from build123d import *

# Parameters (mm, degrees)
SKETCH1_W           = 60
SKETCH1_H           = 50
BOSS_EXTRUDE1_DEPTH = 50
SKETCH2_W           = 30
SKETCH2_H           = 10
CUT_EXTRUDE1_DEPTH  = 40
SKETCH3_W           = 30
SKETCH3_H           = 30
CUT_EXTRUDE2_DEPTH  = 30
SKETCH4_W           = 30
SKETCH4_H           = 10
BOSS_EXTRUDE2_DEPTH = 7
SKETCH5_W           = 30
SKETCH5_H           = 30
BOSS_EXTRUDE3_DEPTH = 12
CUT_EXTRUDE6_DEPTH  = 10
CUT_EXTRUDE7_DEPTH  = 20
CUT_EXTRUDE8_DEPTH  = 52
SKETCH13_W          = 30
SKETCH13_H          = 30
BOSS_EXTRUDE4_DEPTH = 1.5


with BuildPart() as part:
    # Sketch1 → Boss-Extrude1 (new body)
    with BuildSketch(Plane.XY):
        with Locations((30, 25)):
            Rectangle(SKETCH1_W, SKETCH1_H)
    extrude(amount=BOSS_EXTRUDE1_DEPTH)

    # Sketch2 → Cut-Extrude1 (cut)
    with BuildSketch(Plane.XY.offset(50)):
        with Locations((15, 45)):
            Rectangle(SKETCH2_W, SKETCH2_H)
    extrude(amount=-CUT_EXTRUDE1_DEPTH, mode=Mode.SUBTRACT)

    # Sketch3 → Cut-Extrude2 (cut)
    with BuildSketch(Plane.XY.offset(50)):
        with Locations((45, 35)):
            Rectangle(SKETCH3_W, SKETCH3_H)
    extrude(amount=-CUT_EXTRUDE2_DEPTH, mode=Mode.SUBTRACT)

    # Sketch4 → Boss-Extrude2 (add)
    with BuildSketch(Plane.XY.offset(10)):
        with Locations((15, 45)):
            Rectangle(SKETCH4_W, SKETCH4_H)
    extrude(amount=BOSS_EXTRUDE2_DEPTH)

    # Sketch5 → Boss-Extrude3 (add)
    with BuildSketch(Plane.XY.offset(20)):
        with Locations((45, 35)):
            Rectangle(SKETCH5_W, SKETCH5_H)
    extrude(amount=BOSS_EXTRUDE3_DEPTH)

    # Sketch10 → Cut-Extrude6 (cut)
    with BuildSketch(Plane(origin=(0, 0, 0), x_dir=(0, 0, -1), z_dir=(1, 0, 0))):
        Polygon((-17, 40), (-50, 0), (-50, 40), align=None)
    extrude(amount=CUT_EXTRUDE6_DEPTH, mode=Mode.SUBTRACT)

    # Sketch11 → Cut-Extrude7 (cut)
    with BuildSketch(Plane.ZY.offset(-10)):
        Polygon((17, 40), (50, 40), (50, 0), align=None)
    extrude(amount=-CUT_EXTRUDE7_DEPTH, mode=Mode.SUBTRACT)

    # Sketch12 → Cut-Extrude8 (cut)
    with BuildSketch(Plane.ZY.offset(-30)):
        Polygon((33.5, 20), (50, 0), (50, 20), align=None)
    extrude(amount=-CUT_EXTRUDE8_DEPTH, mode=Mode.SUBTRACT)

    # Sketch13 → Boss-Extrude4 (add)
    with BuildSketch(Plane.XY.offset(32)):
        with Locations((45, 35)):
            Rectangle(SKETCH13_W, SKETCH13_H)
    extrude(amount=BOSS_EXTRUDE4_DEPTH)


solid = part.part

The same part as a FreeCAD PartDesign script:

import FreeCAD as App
import Part
import Sketcher
Q = App.Units.Quantity


def add_polygon(sketch, points):
    """Adds a closed chain of lines whose ends are joined by coincident constraints."""
    first, n = sketch.GeometryCount, len(points)
    for a, b in zip(points, points[1:] + points[:1]):
        sketch.addGeometry(Part.LineSegment(App.Vector(*a, 0), App.Vector(*b, 0)), False)
    for i in range(n):
        sketch.addConstraint(Sketcher.Constraint("Coincident", first + i, 2, first + (i + 1) % n, 1))

doc = App.newDocument("Part")
body = doc.addObject("PartDesign::Body", "Body")

# Sketch on XY plane
sketch1 = body.newObject("Sketcher::SketchObject", "Sketch")
sketch1.AttachmentSupport = (doc.getObject("XY_Plane"), [""])
sketch1.MapMode = "FlatFace"
add_polygon(sketch1, [(0, 50), (0, 0), (60, 0), (60, 50)])  # lines 0-3
sketch1.addConstraint(Sketcher.Constraint("Vertical", 0))
sketch1.addConstraint(Sketcher.Constraint("Horizontal", 1))
sketch1.addConstraint(Sketcher.Constraint("Vertical", 2))
sketch1.addConstraint(Sketcher.Constraint("Horizontal", 3))
sketch1.addConstraint(Sketcher.Constraint("Coincident", 0, 2, -1, 1))
sketch1.addConstraint(Sketcher.Constraint("DistanceX", 1, 1, 1, 2, Q("60 mm")))
sketch1.addConstraint(Sketcher.Constraint("DistanceY", 0, 2, 0, 1, Q("50 mm")))
pad1 = body.newObject("PartDesign::Pad", "Pad")
pad1.Profile = sketch1
pad1.Length = 50

# Sketch on XY plane
sketch2 = body.newObject("Sketcher::SketchObject", "Sketch001")
sketch2.AttachmentSupport = (doc.getObject("XY_Plane"), [""])
sketch2.MapMode = "FlatFace"
sketch2.AttachmentOffset = App.Placement(App.Vector(0, 0, 50), App.Rotation())
add_polygon(sketch2, [(0, 50), (0, 40), (30, 40), (30, 50)])  # lines 0-3
sketch2.addConstraint(Sketcher.Constraint("Vertical", 0))
sketch2.addConstraint(Sketcher.Constraint("Horizontal", 1))
sketch2.addConstraint(Sketcher.Constraint("Vertical", 2))
sketch2.addConstraint(Sketcher.Constraint("Horizontal", 3))
sketch2.addConstraint(Sketcher.Constraint("PointOnObject", 0, 2, -2))
sketch2.addConstraint(Sketcher.Constraint("DistanceX", 1, 1, 1, 2, Q("30 mm")))
sketch2.addConstraint(Sketcher.Constraint("DistanceY", 0, 2, 0, 1, Q("10 mm")))
sketch2.addConstraint(Sketcher.Constraint("DistanceY", -1, 1, 0, 2, Q("40 mm")))
pocket1 = body.newObject("PartDesign::Pocket", "Pocket")
pocket1.Profile = sketch2
pocket1.Length = 40

# Sketch on XY plane
sketch3 = body.newObject("Sketcher::SketchObject", "Sketch002")
sketch3.AttachmentSupport = (doc.getObject("XY_Plane"), [""])
sketch3.MapMode = "FlatFace"
sketch3.AttachmentOffset = App.Placement(App.Vector(0, 0, 50), App.Rotation())
add_polygon(sketch3, [(30, 50), (30, 20), (60, 20), (60, 50)])  # lines 0-3
sketch3.addConstraint(Sketcher.Constraint("Vertical", 0))
sketch3.addConstraint(Sketcher.Constraint("Horizontal", 1))
sketch3.addConstraint(Sketcher.Constraint("Vertical", 2))
sketch3.addConstraint(Sketcher.Constraint("Horizontal", 3))
sketch3.addConstraint(Sketcher.Constraint("Equal", 3, 0))
sketch3.addConstraint(Sketcher.Constraint("DistanceX", 1, 1, 1, 2, Q("30 mm")))
sketch3.addConstraint(Sketcher.Constraint("DistanceX", -1, 1, 0, 2, Q("30 mm")))
sketch3.addConstraint(Sketcher.Constraint("DistanceY", -1, 1, 0, 2, Q("20 mm")))
pocket2 = body.newObject("PartDesign::Pocket", "Pocket001")
pocket2.Profile = sketch3
pocket2.Length = 30

# Sketch on XY plane
sketch4 = body.newObject("Sketcher::SketchObject", "Sketch003")
sketch4.AttachmentSupport = (doc.getObject("XY_Plane"), [""])
sketch4.MapMode = "FlatFace"
sketch4.AttachmentOffset = App.Placement(App.Vector(0, 0, 10), App.Rotation())
add_polygon(sketch4, [(0, 50), (0, 40), (30, 40), (30, 50)])  # lines 0-3
sketch4.addConstraint(Sketcher.Constraint("Vertical", 0))
sketch4.addConstraint(Sketcher.Constraint("Horizontal", 1))
sketch4.addConstraint(Sketcher.Constraint("Vertical", 2))
sketch4.addConstraint(Sketcher.Constraint("Horizontal", 3))
sketch4.addConstraint(Sketcher.Constraint("PointOnObject", 0, 2, -2))
sketch4.addConstraint(Sketcher.Constraint("DistanceX", 1, 1, 1, 2, Q("30 mm")))
sketch4.addConstraint(Sketcher.Constraint("DistanceY", 0, 2, 0, 1, Q("10 mm")))
sketch4.addConstraint(Sketcher.Constraint("DistanceY", -1, 1, 0, 2, Q("40 mm")))
pad2 = body.newObject("PartDesign::Pad", "Pad001")
pad2.Profile = sketch4
pad2.Length = 7

# Sketch on XY plane
sketch5 = body.newObject("Sketcher::SketchObject", "Sketch004")
sketch5.AttachmentSupport = (doc.getObject("XY_Plane"), [""])
sketch5.MapMode = "FlatFace"
sketch5.AttachmentOffset = App.Placement(App.Vector(0, 0, 20), App.Rotation())
add_polygon(sketch5, [(30, 50), (30, 20), (60, 20), (60, 50)])  # lines 0-3
sketch5.addConstraint(Sketcher.Constraint("Vertical", 0))
sketch5.addConstraint(Sketcher.Constraint("Horizontal", 1))
sketch5.addConstraint(Sketcher.Constraint("Vertical", 2))
sketch5.addConstraint(Sketcher.Constraint("Horizontal", 3))
sketch5.addConstraint(Sketcher.Constraint("Equal", 3, 0))
sketch5.addConstraint(Sketcher.Constraint("DistanceX", 1, 1, 1, 2, Q("30 mm")))
sketch5.addConstraint(Sketcher.Constraint("DistanceX", -1, 1, 0, 2, Q("30 mm")))
sketch5.addConstraint(Sketcher.Constraint("DistanceY", -1, 1, 0, 2, Q("20 mm")))
pad3 = body.newObject("PartDesign::Pad", "Pad002")
pad3.Profile = sketch5
pad3.Length = 12

# Sketch on YZ plane
sketch6 = body.newObject("Sketcher::SketchObject", "Sketch005")
sketch6.AttachmentSupport = (doc.getObject("YZ_Plane"), [""])
sketch6.MapMode = "FlatFace"
add_polygon(sketch6, [(0, 50), (40, 17), (40, 50)])  # lines 0-2
sketch6.addConstraint(Sketcher.Constraint("Vertical", 1))
sketch6.addConstraint(Sketcher.Constraint("Horizontal", 2))
sketch6.addConstraint(Sketcher.Constraint("PointOnObject", 2, 2, -2))
sketch6.addConstraint(Sketcher.Constraint("DistanceX", 2, 2, 2, 1, Q("40 mm")))
sketch6.addConstraint(Sketcher.Constraint("DistanceY", 1, 1, 1, 2, Q("33 mm")))
sketch6.addConstraint(Sketcher.Constraint("DistanceY", -1, 1, 0, 2, Q("17 mm")))
pocket3 = body.newObject("PartDesign::Pocket", "Pocket002")
pocket3.Profile = sketch6
pocket3.Length = 10
pocket3.Reversed = True

# Sketch on YZ plane
sketch7 = body.newObject("Sketcher::SketchObject", "Sketch006")
sketch7.AttachmentSupport = (doc.getObject("YZ_Plane"), [""])
sketch7.MapMode = "FlatFace"
sketch7.AttachmentOffset = App.Placement(App.Vector(0, 0, 10), App.Rotation())
add_polygon(sketch7, [(40, 50), (40, 17), (0, 50)])  # lines 0-2
sketch7.addConstraint(Sketcher.Constraint("Vertical", 0))
sketch7.addConstraint(Sketcher.Constraint("Horizontal", 2))
sketch7.addConstraint(Sketcher.Constraint("PointOnObject", 1, 2, -2))
sketch7.addConstraint(Sketcher.Constraint("DistanceX", 2, 1, 2, 2, Q("40 mm")))
sketch7.addConstraint(Sketcher.Constraint("DistanceY", 0, 2, 0, 1, Q("33 mm")))
sketch7.addConstraint(Sketcher.Constraint("DistanceY", -1, 1, 0, 2, Q("17 mm")))
pocket4 = body.newObject("PartDesign::Pocket", "Pocket003")
pocket4.Profile = sketch7
pocket4.Length = 20
pocket4.Reversed = True

# Sketch on YZ plane
sketch8 = body.newObject("Sketcher::SketchObject", "Sketch007")
sketch8.AttachmentSupport = (doc.getObject("YZ_Plane"), [""])
sketch8.MapMode = "FlatFace"
sketch8.AttachmentOffset = App.Placement(App.Vector(0, 0, 30), App.Rotation())
add_polygon(sketch8, [(20, 34), (0, 50), (20, 50)])  # lines 0-2
sketch8.addConstraint(Sketcher.Constraint("Horizontal", 1))
sketch8.addConstraint(Sketcher.Constraint("Vertical", 2))
sketch8.addConstraint(Sketcher.Constraint("PointOnObject", 0, 2, -2))
sketch8.addConstraint(Sketcher.Constraint("DistanceX", 1, 1, 1, 2, Q("20 mm")))
sketch8.addConstraint(Sketcher.Constraint("DistanceY", 2, 2, 2, 1, Q("16.5 mm")))
sketch8.addConstraint(Sketcher.Constraint("DistanceY", -1, 1, 0, 2, Q("50 mm")))
pocket5 = body.newObject("PartDesign::Pocket", "Pocket004")
pocket5.Profile = sketch8
pocket5.Length = 52
pocket5.Reversed = True

# Sketch on XY plane
sketch9 = body.newObject("Sketcher::SketchObject", "Sketch008")
sketch9.AttachmentSupport = (doc.getObject("XY_Plane"), [""])
sketch9.MapMode = "FlatFace"
sketch9.AttachmentOffset = App.Placement(App.Vector(0, 0, 32), App.Rotation())
add_polygon(sketch9, [(30, 50), (30, 20), (60, 20), (60, 50)])  # lines 0-3
sketch9.addConstraint(Sketcher.Constraint("Vertical", 0))
sketch9.addConstraint(Sketcher.Constraint("Horizontal", 1))
sketch9.addConstraint(Sketcher.Constraint("Vertical", 2))
sketch9.addConstraint(Sketcher.Constraint("Horizontal", 3))
sketch9.addConstraint(Sketcher.Constraint("Equal", 3, 0))
sketch9.addConstraint(Sketcher.Constraint("DistanceX", 1, 1, 1, 2, Q("30 mm")))
sketch9.addConstraint(Sketcher.Constraint("DistanceX", -1, 1, 0, 2, Q("30 mm")))
sketch9.addConstraint(Sketcher.Constraint("DistanceY", -1, 1, 0, 2, Q("20 mm")))
pad4 = body.newObject("PartDesign::Pad", "Pad003")
pad4.Profile = sketch9
pad4.Length = 1.5

doc.recompute()
